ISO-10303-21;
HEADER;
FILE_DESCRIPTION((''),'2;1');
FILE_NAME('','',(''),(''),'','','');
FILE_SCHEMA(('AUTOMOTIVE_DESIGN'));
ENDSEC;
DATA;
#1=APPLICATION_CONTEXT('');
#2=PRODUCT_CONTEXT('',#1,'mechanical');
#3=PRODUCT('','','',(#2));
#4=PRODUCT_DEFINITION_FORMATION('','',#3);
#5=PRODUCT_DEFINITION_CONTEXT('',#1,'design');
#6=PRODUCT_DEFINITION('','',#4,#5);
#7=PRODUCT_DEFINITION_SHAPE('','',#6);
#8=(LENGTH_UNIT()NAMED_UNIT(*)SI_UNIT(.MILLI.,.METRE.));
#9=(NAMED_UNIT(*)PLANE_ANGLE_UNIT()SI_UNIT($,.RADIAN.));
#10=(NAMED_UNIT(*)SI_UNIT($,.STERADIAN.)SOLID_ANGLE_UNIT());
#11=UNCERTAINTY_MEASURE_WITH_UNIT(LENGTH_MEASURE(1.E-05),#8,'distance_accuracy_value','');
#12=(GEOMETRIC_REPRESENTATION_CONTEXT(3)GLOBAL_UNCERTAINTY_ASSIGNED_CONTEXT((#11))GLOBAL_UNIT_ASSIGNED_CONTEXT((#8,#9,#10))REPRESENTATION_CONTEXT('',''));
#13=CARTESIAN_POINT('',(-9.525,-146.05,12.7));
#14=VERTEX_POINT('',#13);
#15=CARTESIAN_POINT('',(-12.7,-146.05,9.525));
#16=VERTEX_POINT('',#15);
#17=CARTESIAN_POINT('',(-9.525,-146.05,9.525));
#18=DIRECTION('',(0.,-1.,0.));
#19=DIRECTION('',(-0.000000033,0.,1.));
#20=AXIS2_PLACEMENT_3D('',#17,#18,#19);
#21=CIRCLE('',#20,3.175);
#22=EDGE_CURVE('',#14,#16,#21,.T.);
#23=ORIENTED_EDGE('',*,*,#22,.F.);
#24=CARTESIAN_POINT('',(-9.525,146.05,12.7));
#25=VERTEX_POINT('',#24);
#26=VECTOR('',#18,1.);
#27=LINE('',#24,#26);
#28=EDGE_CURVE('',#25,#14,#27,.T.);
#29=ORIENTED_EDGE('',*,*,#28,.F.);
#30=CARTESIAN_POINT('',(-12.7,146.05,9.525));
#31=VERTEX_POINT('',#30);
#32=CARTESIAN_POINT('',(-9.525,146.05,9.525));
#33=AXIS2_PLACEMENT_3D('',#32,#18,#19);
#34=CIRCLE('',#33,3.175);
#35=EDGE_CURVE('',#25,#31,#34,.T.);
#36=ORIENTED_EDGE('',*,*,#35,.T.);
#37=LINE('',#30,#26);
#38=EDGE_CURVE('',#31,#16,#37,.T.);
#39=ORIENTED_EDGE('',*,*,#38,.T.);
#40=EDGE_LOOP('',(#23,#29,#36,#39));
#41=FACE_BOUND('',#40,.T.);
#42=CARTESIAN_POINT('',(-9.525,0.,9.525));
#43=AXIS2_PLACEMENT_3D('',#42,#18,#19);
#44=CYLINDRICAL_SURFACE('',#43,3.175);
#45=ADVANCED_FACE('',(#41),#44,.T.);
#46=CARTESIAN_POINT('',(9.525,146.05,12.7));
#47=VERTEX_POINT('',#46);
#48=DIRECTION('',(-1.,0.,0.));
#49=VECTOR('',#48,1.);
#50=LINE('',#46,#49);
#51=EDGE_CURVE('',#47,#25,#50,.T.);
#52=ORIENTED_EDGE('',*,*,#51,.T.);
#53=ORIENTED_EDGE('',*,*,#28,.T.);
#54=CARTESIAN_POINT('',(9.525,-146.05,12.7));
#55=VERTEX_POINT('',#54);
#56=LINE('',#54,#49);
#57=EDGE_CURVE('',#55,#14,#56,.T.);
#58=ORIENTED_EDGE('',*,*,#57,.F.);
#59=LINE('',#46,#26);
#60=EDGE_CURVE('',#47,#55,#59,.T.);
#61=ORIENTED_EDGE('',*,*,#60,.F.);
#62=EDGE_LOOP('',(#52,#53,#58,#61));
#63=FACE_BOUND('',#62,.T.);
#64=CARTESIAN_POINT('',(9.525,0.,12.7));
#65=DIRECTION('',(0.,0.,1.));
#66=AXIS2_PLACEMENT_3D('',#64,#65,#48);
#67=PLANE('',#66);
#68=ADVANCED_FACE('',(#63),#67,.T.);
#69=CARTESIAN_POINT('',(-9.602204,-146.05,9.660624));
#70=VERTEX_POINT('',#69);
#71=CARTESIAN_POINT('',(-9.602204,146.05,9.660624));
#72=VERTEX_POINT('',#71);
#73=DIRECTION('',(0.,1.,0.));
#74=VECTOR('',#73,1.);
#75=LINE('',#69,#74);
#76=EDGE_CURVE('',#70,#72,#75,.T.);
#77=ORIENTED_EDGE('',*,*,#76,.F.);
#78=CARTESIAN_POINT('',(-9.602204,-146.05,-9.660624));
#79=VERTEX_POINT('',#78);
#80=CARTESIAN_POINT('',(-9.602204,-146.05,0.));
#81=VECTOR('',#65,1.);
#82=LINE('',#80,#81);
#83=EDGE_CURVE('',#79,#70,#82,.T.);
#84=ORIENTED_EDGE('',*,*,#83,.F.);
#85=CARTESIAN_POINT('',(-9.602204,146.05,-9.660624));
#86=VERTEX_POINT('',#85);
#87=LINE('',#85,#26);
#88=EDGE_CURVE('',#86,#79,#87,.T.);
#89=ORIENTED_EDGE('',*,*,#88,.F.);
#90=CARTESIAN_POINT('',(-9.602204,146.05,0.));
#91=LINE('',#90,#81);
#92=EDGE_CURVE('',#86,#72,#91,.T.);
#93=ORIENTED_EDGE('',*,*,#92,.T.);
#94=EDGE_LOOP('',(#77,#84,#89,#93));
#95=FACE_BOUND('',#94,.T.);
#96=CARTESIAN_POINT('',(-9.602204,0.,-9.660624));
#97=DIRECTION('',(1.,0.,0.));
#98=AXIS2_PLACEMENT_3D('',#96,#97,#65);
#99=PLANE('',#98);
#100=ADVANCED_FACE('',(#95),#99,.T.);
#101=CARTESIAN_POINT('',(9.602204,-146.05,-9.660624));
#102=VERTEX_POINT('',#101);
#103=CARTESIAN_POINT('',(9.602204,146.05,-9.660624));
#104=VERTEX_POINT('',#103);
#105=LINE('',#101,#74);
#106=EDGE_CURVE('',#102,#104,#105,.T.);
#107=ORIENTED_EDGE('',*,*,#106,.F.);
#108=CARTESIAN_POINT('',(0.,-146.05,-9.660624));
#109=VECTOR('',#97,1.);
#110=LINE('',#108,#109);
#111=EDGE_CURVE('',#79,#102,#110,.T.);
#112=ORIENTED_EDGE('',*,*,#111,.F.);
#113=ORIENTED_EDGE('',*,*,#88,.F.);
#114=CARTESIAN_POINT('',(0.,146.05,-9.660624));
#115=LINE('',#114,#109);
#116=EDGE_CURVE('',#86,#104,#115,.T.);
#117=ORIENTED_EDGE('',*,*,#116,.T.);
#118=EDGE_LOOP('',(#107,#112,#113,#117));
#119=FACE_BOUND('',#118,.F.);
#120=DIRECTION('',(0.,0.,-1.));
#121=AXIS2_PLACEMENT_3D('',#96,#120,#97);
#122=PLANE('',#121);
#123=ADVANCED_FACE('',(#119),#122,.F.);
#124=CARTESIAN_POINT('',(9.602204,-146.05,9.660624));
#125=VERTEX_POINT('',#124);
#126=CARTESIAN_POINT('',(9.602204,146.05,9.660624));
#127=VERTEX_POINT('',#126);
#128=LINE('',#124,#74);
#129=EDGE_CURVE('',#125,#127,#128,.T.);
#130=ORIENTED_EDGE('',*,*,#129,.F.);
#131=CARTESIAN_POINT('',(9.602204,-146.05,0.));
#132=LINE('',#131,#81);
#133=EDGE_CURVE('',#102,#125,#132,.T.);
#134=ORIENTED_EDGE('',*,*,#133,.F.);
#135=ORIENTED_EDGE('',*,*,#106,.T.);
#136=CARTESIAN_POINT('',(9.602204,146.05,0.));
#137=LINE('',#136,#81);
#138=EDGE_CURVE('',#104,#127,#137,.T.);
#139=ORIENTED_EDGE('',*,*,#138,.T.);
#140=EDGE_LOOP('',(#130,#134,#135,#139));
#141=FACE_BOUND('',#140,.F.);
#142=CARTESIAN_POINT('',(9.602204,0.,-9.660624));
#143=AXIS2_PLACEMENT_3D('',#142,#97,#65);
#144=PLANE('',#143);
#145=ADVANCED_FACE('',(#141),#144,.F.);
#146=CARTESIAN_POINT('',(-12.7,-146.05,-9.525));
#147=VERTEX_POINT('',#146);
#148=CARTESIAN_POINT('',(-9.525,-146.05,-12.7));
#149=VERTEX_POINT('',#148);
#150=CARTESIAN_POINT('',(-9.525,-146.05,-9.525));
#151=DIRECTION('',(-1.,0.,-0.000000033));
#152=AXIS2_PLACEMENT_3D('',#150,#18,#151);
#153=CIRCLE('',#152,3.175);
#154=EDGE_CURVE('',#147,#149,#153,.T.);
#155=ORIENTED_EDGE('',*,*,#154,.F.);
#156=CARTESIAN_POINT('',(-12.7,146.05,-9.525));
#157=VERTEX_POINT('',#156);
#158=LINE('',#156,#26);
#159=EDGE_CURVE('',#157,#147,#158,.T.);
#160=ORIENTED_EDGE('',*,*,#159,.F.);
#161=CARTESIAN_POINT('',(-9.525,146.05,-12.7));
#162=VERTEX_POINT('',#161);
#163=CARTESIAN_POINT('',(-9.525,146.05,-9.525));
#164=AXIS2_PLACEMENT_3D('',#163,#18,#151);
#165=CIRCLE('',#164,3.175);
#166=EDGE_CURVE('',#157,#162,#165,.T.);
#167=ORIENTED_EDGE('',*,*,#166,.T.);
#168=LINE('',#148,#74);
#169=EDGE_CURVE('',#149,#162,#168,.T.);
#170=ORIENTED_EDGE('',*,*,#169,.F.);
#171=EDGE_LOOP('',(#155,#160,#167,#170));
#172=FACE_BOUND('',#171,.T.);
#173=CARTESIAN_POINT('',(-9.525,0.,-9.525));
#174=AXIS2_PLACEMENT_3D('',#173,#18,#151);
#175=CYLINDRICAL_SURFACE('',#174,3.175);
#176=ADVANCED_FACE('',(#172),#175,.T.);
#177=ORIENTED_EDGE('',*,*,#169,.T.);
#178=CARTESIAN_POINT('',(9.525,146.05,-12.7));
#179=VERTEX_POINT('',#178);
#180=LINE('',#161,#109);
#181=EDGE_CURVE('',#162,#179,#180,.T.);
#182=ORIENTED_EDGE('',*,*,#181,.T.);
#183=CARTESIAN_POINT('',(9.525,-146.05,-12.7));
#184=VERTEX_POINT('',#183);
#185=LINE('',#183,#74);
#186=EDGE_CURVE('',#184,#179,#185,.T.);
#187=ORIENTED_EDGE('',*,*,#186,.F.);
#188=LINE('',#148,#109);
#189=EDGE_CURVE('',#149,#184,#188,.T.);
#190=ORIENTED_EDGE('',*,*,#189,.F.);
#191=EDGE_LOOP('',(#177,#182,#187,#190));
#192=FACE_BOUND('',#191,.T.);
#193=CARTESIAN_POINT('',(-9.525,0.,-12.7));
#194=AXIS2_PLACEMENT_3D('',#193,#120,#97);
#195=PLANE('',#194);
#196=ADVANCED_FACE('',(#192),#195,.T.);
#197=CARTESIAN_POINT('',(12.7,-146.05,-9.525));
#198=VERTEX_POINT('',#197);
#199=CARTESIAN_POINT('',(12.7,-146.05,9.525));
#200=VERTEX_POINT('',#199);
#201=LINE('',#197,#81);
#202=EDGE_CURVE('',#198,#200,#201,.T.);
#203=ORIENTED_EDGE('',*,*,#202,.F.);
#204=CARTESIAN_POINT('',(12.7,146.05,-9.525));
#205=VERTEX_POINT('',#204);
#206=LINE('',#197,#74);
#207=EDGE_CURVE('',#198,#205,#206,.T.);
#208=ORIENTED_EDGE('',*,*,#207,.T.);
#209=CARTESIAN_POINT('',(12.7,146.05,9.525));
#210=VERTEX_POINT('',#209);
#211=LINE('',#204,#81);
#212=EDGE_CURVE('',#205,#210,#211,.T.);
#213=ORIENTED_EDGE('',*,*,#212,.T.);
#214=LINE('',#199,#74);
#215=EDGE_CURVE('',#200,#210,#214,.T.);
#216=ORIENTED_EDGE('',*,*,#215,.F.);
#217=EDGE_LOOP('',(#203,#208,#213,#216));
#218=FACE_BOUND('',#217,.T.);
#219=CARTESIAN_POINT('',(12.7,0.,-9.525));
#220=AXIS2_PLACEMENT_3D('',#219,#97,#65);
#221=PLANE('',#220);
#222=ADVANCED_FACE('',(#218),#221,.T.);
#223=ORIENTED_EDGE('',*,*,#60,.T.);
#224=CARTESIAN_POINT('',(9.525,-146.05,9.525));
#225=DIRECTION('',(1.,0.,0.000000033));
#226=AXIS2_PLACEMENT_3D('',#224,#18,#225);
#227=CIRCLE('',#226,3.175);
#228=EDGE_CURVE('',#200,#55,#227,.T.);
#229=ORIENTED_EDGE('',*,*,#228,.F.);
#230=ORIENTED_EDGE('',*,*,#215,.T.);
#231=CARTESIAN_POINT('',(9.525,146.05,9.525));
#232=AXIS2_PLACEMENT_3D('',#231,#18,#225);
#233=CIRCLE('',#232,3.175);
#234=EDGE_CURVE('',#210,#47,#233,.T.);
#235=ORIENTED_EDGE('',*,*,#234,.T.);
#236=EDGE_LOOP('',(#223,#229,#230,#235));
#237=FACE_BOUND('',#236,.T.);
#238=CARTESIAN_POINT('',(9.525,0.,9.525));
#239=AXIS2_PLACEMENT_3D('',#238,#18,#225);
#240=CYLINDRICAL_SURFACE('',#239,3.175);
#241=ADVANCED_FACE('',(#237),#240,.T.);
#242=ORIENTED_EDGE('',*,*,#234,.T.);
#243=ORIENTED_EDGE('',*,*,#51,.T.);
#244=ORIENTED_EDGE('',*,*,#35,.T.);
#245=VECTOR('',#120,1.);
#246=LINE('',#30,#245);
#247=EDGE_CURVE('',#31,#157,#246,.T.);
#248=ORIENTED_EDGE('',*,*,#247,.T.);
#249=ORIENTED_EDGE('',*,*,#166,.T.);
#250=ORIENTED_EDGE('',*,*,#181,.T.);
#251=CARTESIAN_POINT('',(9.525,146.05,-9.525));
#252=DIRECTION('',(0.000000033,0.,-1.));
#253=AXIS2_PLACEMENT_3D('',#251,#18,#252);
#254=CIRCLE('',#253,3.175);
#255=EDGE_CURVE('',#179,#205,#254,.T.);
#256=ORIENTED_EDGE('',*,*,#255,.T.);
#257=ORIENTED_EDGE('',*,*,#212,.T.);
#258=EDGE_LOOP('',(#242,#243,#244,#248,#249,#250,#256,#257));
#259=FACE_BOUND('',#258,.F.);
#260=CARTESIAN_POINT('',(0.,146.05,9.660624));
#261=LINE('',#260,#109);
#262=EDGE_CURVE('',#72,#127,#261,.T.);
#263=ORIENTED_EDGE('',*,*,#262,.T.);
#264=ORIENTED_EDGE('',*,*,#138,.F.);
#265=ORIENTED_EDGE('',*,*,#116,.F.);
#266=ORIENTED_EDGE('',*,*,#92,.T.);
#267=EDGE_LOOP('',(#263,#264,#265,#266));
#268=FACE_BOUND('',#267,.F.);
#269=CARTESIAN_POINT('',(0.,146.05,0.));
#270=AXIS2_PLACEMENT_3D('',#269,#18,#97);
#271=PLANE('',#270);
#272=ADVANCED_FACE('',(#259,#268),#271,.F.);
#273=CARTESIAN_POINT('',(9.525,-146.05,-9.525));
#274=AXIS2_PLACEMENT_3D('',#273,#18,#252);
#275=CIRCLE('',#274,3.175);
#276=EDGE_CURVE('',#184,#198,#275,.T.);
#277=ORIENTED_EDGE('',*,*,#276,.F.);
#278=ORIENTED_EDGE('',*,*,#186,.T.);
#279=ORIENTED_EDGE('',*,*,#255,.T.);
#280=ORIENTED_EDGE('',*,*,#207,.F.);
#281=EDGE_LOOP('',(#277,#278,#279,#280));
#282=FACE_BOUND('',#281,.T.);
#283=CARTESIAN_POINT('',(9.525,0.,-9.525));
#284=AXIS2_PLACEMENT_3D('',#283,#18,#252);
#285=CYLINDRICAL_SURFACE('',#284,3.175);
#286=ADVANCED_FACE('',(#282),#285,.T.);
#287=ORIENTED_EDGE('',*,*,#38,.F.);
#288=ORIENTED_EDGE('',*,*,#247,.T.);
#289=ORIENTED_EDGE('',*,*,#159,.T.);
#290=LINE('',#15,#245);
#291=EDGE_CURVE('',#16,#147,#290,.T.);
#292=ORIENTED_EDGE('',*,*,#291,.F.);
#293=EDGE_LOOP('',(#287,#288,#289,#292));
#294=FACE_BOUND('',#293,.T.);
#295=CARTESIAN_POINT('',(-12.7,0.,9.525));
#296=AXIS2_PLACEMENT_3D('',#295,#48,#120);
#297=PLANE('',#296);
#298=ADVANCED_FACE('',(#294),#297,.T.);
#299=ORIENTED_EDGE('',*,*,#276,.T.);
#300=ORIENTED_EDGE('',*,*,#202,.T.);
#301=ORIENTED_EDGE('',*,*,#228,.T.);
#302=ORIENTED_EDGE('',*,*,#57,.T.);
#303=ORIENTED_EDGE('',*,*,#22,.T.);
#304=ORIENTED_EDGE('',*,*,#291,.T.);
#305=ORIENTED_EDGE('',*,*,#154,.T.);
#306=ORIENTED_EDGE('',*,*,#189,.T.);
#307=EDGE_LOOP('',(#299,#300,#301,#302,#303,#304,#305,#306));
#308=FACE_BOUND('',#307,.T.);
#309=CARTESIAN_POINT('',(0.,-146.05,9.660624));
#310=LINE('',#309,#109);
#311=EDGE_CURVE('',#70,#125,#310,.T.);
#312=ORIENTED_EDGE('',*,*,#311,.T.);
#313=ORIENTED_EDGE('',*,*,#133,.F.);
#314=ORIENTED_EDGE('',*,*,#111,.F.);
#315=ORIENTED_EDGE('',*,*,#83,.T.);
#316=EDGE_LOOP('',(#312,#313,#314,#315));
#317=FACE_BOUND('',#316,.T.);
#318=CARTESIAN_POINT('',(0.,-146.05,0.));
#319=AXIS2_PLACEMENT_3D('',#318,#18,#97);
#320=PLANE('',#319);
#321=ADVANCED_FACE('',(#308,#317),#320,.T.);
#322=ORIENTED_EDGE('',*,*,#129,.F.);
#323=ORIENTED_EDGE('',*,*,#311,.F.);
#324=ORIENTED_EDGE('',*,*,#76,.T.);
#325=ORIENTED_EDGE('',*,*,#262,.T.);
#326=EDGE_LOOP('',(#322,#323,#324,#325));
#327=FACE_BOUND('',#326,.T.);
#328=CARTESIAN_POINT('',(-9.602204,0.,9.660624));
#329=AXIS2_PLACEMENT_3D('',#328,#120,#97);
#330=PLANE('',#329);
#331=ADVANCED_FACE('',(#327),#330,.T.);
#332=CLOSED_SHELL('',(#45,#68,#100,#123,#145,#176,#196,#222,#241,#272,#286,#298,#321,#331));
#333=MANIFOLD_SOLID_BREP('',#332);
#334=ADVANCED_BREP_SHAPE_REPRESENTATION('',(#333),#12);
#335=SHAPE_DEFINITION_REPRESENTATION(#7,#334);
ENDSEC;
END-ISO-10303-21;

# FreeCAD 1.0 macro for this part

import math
import FreeCAD as App
import Part
import Sketcher
from FreeCAD import Vector
Q = App.Units.Quantity


def add_polygon(sketch, points):
    """Adds a closed chain of lines whose ends are joined by coincident constraints."""
    first, n = sketch.GeometryCount, len(points)
    for a, b in zip(points, points[1:] + points[:1]):
        sketch.addGeometry(Part.LineSegment(App.Vector(*a, 0), App.Vector(*b, 0)), False)
    for i in range(n):
        sketch.addConstraint(Sketcher.Constraint("Coincident", first + i, 2, first + (i + 1) % n, 1))

doc = App.newDocument("Part")
params = doc.addObject("Spreadsheet::Sheet", "Params")
for row, (alias, value) in enumerate([
    ("sketch1_radius", "0.125 in"),
    ("sketch1_width", "0.75 in"),
    ("pad1_length", "11.5 in"),
], start=1):
    params.set(f"A{row}", alias)
    params.set(f"B{row}", "=" + value)
    params.setAlias(f"B{row}", alias)

body = doc.addObject("PartDesign::Body", "Body")

sketch1 = body.newObject("Sketcher::SketchObject", "Sketch")
sketch1.AttachmentSupport = (doc.getObject("XZ_Plane"), [""])
sketch1.MapMode = "FlatFace"
sketch1.addGeometry(Part.ArcOfCircle(Part.Circle(Vector(9.525, 9.525, 0), Vector(0, 0, 1), 3.175), math.radians(0.000002), math.radians(89.999998)), False)
sketch1.addGeometry(Part.LineSegment(Vector(9.525, 12.7, 0), Vector(-9.525, 12.7, 0)), False)
sketch1.addGeometry(Part.ArcOfCircle(Part.Circle(Vector(-9.525, 9.525, 0), Vector(0, 0, 1), 3.175), math.radians(90.000002), math.radians(179.999998)), False)
sketch1.addGeometry(Part.LineSegment(Vector(-12.7, 9.525, 0), Vector(-12.7, -9.525, 0)), False)
sketch1.addGeometry(Part.ArcOfCircle(Part.Circle(Vector(-9.525, -9.525, 0), Vector(0, 0, 1), 3.175), math.radians(-179.999998), math.radians(-90.000002)), False)
sketch1.addGeometry(Part.LineSegment(Vector(-9.525, -12.7, 0), Vector(9.525, -12.7, 0)), False)
sketch1.addGeometry(Part.ArcOfCircle(Part.Circle(Vector(9.525, -9.525, 0), Vector(0, 0, 1), 3.175), math.radians(-89.999998), math.radians(-0.000002)), False)
sketch1.addGeometry(Part.LineSegment(Vector(12.7, -9.525, 0), Vector(12.7, 9.525, 0)), False)
add_polygon(sketch1, [(9.602204, -9.660624), (-9.602204, -9.660624), (-9.602204, 9.660624), (9.602204, 9.660624)])
sketch1.addConstraint([
    Sketcher.Constraint("Tangent", 0, 2, 1, 1),
    Sketcher.Constraint("Tangent", 1, 2, 2, 1),
    Sketcher.Constraint("Tangent", 2, 2, 3, 1),
    Sketcher.Constraint("Tangent", 3, 2, 4, 1),
    Sketcher.Constraint("Tangent", 4, 2, 5, 1),
    Sketcher.Constraint("Tangent", 5, 2, 6, 1),
    Sketcher.Constraint("Tangent", 6, 2, 7, 1),
    Sketcher.Constraint("Tangent", 7, 2, 0, 1),
    Sketcher.Constraint("Horizontal", 1),
    Sketcher.Constraint("Vertical", 3),
    Sketcher.Constraint("Horizontal", 5),
    Sketcher.Constraint("Vertical", 7),
    Sketcher.Constraint("Horizontal", 8),
    Sketcher.Constraint("Vertical", 9),
    Sketcher.Constraint("Horizontal", 10),
    Sketcher.Constraint("Vertical", 11),
    Sketcher.Constraint("Equal", 0, 2),
    Sketcher.Constraint("Equal", 2, 4),
    Sketcher.Constraint("Equal", 4, 6),
    Sketcher.Constraint("Symmetric", 0, 3, 4, 3, -1, 1),
    Sketcher.Constraint("Symmetric", 8, 2, 10, 2, -1, 1),
    Sketcher.Constraint("Equal", 5, 3),
    Sketcher.Constraint("Radius", 0, Q("0.125 in")),
    Sketcher.Constraint("DistanceX", 1, 2, 1, 1, Q("0.75 in")),
    Sketcher.Constraint("DistanceX", 8, 2, 8, 1, 19.204408),
    Sketcher.Constraint("DistanceY", 9, 1, 9, 2, 19.321248),
])
sketch1.setExpression("Constraints[26]", "Params.sketch1_radius")
sketch1.setExpression("Constraints[27]", "Params.sketch1_width")
pad1 = body.newObject("PartDesign::Pad", "Pad")
pad1.Profile = sketch1
pad1.setExpression("Length", "Params.pad1_length")
pad1.Midplane = True

doc.recompute()
